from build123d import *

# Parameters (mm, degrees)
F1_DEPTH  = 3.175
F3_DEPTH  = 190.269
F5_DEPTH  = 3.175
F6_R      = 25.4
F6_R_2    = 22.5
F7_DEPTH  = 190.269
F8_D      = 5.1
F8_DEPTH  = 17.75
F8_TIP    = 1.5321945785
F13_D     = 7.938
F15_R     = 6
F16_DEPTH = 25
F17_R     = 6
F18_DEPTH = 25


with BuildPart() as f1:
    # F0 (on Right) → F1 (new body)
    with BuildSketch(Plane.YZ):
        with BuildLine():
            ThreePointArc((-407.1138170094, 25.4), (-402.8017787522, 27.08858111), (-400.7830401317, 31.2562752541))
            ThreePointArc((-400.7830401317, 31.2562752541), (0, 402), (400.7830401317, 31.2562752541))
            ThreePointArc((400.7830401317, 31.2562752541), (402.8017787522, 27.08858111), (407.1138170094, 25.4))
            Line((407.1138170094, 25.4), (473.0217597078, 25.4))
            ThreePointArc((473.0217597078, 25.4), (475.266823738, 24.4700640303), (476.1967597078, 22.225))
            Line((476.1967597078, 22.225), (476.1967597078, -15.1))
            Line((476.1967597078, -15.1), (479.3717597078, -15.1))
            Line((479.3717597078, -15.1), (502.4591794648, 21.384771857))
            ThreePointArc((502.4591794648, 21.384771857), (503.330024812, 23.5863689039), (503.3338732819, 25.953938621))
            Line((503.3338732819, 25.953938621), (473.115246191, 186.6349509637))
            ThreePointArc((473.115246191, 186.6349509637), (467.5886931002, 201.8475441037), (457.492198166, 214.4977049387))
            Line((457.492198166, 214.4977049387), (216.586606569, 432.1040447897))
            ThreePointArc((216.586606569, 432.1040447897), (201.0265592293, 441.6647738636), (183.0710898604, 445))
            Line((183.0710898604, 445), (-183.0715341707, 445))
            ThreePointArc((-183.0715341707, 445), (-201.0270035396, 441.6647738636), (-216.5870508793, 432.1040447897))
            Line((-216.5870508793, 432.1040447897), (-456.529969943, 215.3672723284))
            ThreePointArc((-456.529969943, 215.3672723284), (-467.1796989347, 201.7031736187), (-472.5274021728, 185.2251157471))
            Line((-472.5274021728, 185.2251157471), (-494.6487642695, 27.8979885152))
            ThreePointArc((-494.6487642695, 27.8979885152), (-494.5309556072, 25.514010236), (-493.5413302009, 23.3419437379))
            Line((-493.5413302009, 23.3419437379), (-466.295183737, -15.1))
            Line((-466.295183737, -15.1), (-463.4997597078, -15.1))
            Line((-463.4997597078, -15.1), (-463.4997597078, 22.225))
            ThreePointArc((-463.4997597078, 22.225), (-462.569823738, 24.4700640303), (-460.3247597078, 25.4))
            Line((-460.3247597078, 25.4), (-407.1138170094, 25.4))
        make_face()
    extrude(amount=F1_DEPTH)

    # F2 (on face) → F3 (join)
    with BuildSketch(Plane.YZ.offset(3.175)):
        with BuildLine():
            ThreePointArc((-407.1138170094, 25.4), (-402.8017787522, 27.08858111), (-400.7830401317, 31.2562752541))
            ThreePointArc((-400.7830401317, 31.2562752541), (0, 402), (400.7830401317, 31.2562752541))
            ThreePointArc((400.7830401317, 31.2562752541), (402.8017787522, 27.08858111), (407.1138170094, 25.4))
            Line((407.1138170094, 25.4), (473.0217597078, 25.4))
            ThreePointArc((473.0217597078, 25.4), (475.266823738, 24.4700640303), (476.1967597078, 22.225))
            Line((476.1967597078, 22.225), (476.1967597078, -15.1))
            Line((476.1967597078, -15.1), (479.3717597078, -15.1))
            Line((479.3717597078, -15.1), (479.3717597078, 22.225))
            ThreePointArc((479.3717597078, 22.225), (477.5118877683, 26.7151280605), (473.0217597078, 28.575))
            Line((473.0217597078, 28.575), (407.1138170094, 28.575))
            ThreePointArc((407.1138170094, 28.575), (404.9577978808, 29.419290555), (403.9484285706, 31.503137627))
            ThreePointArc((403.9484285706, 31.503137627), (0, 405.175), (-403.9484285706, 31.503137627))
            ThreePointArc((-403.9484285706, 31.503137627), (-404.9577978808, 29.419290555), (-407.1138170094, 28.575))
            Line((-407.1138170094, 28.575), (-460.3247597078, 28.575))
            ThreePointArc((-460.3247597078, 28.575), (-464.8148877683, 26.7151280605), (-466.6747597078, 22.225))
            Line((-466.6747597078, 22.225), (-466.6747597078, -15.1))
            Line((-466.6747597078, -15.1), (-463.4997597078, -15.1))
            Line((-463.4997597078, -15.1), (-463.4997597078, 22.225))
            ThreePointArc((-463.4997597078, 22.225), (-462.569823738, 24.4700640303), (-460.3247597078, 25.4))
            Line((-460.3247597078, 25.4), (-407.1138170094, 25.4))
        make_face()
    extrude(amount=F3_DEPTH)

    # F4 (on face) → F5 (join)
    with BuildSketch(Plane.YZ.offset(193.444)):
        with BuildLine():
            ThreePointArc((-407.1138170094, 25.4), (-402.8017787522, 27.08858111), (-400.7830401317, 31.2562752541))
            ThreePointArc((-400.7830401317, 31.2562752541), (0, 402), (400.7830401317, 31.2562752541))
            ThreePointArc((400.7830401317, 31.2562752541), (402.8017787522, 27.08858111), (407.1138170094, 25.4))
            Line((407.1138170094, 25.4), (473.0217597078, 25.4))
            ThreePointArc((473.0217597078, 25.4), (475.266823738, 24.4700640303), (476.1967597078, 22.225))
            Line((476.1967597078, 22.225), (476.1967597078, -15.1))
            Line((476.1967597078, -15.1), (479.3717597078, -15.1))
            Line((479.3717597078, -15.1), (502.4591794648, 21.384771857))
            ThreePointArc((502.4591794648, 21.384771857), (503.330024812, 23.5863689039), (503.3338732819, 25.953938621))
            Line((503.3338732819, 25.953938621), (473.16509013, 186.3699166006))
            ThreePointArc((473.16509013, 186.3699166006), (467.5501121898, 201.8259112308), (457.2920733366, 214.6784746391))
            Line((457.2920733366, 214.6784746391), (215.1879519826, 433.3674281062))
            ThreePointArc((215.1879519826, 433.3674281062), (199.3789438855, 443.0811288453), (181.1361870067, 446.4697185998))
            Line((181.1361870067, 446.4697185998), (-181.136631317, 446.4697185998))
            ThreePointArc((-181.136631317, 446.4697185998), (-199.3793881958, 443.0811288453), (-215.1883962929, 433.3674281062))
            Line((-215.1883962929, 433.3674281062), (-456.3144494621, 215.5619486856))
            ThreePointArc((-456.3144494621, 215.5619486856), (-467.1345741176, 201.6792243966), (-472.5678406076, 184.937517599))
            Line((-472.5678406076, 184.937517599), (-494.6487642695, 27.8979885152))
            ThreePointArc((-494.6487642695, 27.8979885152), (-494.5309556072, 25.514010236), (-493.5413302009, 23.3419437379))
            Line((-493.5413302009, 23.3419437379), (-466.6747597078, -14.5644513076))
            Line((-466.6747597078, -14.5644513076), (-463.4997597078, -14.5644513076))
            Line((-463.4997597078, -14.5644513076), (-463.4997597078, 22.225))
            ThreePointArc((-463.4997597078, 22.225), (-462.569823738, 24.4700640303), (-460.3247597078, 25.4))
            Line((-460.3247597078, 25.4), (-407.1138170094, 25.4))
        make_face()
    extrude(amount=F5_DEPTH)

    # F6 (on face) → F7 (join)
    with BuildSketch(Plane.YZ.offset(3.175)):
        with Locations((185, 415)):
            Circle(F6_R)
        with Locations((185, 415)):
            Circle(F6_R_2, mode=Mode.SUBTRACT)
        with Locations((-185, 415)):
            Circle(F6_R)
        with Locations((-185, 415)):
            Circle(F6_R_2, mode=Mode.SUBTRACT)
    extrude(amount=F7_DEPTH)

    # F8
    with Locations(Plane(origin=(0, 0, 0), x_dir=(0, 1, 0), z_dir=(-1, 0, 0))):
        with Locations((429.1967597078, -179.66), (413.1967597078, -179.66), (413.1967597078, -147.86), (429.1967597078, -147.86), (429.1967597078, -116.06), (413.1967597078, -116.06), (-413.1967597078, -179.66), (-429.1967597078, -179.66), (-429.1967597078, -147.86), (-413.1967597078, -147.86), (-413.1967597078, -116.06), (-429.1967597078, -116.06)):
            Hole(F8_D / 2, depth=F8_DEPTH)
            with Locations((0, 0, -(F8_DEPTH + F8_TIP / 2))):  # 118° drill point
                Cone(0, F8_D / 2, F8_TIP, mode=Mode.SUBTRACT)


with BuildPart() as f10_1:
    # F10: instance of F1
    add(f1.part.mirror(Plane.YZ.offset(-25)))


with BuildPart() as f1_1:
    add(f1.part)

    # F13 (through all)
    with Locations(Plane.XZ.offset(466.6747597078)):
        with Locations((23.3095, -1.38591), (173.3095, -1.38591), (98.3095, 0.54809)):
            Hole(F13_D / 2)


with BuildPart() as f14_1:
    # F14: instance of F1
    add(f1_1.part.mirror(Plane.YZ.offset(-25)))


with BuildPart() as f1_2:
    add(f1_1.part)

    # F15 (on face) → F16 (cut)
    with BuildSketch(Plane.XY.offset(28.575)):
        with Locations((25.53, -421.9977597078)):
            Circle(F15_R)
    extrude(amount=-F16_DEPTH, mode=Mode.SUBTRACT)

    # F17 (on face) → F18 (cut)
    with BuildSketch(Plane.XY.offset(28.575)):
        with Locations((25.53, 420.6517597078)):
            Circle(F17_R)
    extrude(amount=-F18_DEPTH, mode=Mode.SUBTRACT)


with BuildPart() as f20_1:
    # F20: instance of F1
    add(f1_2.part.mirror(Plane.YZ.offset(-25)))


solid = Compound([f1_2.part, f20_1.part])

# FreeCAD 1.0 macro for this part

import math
import FreeCAD as App
import Part
import Sketcher
Q = App.Units.Quantity

doc = App.newDocument("Part")
body = doc.addObject("PartDesign::Body", "Body")

sketch1 = body.newObject("Sketcher::SketchObject", "Sketch")
sketch1.AttachmentSupport = (doc.getObject("YZ_Plane"), [""])
sketch1.MapMode = "FlatFace"
sketch1.addGeometry(Part.ArcOfCircle(Part.Circle(App.Vector(-407.1, 31.8, 0), App.Vector(0, 0, 1), 6.3), math.radians(-90), math.radians(-4)), False)
sketch1.addGeometry(Part.ArcOfCircle(Part.Circle(App.Vector(0, 0, 0), App.Vector(0, 0, 1), 402), math.radians(4), math.radians(176)), False)
sketch1.addGeometry(Part.ArcOfCircle(Part.Circle(App.Vector(407.1, 31.8, 0), App.Vector(0, 0, 1), 6.3), math.radians(-176), math.radians(-90)), False)
sketch1.addGeometry(Part.LineSegment(App.Vector(407.1, 25.4, 0), App.Vector(473, 25.4, 0)), False)
sketch1.addGeometry(Part.ArcOfCircle(Part.Circle(App.Vector(473, 22.2, 0), App.Vector(0, 0, 1), 3.2), math.radians(0), math.radians(90)), False)
sketch1.addGeometry(Part.LineSegment(App.Vector(476.2, 22.2, 0), App.Vector(476.2, -15.1, 0)), False)
sketch1.addGeometry(Part.LineSegment(App.Vector(476.2, -15.1, 0), App.Vector(479.4, -15.1, 0)), False)
sketch1.addGeometry(Part.LineSegment(App.Vector(479.4, -15.1, 0), App.Vector(502.5, 21.4, 0)), False)
sketch1.addGeometry(Part.ArcOfCircle(Part.Circle(App.Vector(497.1, 24.8, 0), App.Vector(0, 0, 1), 6.3), math.radians(-32), math.radians(11)), False)
sketch1.addGeometry(Part.LineSegment(App.Vector(503.3, 26, 0), App.Vector(473.1, 186.6, 0)), False)
sketch1.addGeometry(Part.ArcOfCircle(Part.Circle(App.Vector(424, 177.4, 0), App.Vector(0, 0, 1), 50), math.radians(11), math.radians(48)), False)
sketch1.addGeometry(Part.LineSegment(App.Vector(457.5, 214.5, 0), App.Vector(216.6, 432.1, 0)), False)
sketch1.addGeometry(Part.ArcOfCircle(Part.Circle(App.Vector(183.1, 395, 0), App.Vector(0, 0, 1), 50), math.radians(48), math.radians(90)), False)
sketch1.addGeometry(Part.LineSegment(App.Vector(183.1, 445, 0), App.Vector(-183.1, 445, 0)), False)
sketch1.addGeometry(Part.ArcOfCircle(Part.Circle(App.Vector(-183.1, 395, 0), App.Vector(0, 0, 1), 50), math.radians(90), math.radians(132)), False)
sketch1.addGeometry(Part.LineSegment(App.Vector(-216.6, 432.1, 0), App.Vector(-456.5, 215.4, 0)), False)
sketch1.addGeometry(Part.ArcOfCircle(Part.Circle(App.Vector(-423, 178.3, 0), App.Vector(0, 0, 1), 50), math.radians(132), math.radians(172)), False)
sketch1.addGeometry(Part.LineSegment(App.Vector(-472.5, 185.2, 0), App.Vector(-494.6, 27.9, 0)), False)
sketch1.addGeometry(Part.ArcOfCircle(Part.Circle(App.Vector(-488.4, 27, 0), App.Vector(0, 0, 1), 6.3), math.radians(172), math.radians(215)), False)
sketch1.addGeometry(Part.LineSegment(App.Vector(-493.5, 23.3, 0), App.Vector(-466.3, -15.1, 0)), False)
sketch1.addGeometry(Part.LineSegment(App.Vector(-466.3, -15.1, 0), App.Vector(-463.5, -15.1, 0)), False)
sketch1.addGeometry(Part.LineSegment(App.Vector(-463.5, -15.1, 0), App.Vector(-463.5, 22.2, 0)), False)
sketch1.addGeometry(Part.ArcOfCircle(Part.Circle(App.Vector(-460.3, 22.2, 0), App.Vector(0, 0, 1), 3.2), math.radians(90), math.radians(180)), False)
sketch1.addGeometry(Part.LineSegment(App.Vector(-460.3, 25.4, 0), App.Vector(-407.1, 25.4, 0)), False)
sketch1.addConstraint(Sketcher.Constraint("Tangent", 0, 2, 1, 2))
sketch1.addConstraint(Sketcher.Constraint("Tangent", 1, 1, 2, 1))
sketch1.addConstraint(Sketcher.Constraint("Tangent", 2, 2, 3, 1))
sketch1.addConstraint(Sketcher.Constraint("Tangent", 3, 2, 4, 2))
sketch1.addConstraint(Sketcher.Constraint("Tangent", 4, 1, 5, 1))
sketch1.addConstraint(Sketcher.Constraint("Coincident", 5, 2, 6, 1))
sketch1.addConstraint(Sketcher.Constraint("Coincident", 6, 2, 7, 1))
sketch1.addConstraint(Sketcher.Constraint("Tangent", 7, 2, 8, 1))
sketch1.addConstraint(Sketcher.Constraint("Tangent", 8, 2, 9, 1))
sketch1.addConstraint(Sketcher.Constraint("Tangent", 9, 2, 10, 1))
sketch1.addConstraint(Sketcher.Constraint("Tangent", 10, 2, 11, 1))
sketch1.addConstraint(Sketcher.Constraint("Tangent", 11, 2, 12, 1))
sketch1.addConstraint(Sketcher.Constraint("Tangent", 12, 2, 13, 1))
sketch1.addConstraint(Sketcher.Constraint("Tangent", 13, 2, 14, 1))
sketch1.addConstraint(Sketcher.Constraint("Tangent", 14, 2, 15, 1))
sketch1.addConstraint(Sketcher.Constraint("Tangent", 15, 2, 16, 1))
sketch1.addConstraint(Sketcher.Constraint("Tangent", 16, 2, 17, 1))
sketch1.addConstraint(Sketcher.Constraint("Tangent", 17, 2, 18, 1))
sketch1.addConstraint(Sketcher.Constraint("Tangent", 18, 2, 19, 1))
sketch1.addConstraint(Sketcher.Constraint("Coincident", 19, 2, 20, 1))
sketch1.addConstraint(Sketcher.Constraint("Coincident", 20, 2, 21, 1))
sketch1.addConstraint(Sketcher.Constraint("Tangent", 21, 2, 22, 2))
sketch1.addConstraint(Sketcher.Constraint("Tangent", 22, 1, 23, 1))
sketch1.addConstraint(Sketcher.Constraint("Tangent", 23, 2, 0, 1))
sketch1.addConstraint(Sketcher.Constraint("Horizontal", 3))
sketch1.addConstraint(Sketcher.Constraint("Vertical", 5))
sketch1.addConstraint(Sketcher.Constraint("Horizontal", 6))
sketch1.addConstraint(Sketcher.Constraint("Horizontal", 13))
sketch1.addConstraint(Sketcher.Constraint("Horizontal", 20))
sketch1.addConstraint(Sketcher.Constraint("Vertical", 21))
sketch1.addConstraint(Sketcher.Constraint("Horizontal", 23))
sketch1.addConstraint(Sketcher.Constraint("Coincident", 1, 3, -1, 1))
sketch1.addConstraint(Sketcher.Constraint("Equal", 0, 2))
sketch1.addConstraint(Sketcher.Constraint("Equal", 2, 8))
sketch1.addConstraint(Sketcher.Constraint("Equal", 10, 12))
sketch1.addConstraint(Sketcher.Constraint("Equal", 12, 14))
sketch1.addConstraint(Sketcher.Constraint("Equal", 14, 16))
sketch1.addConstraint(Sketcher.Constraint("Equal", 8, 18))
sketch1.addConstraint(Sketcher.Constraint("Equal", 4, 22))
sketch1.addConstraint(Sketcher.Constraint("Horizontal", 0, 3, 2, 3))
sketch1.addConstraint(Sketcher.Constraint("Horizontal", 11, 2, 14, 2))
sketch1.addConstraint(Sketcher.Constraint("Horizontal", 6, 2, 19, 2))
sketch1.addConstraint(Sketcher.Constraint("Radius", 1, Q("402 mm")))
sketch1.addConstraint(Sketcher.Constraint("Radius", 10, Q("50 mm")))
sketch1.addConstraint(Sketcher.Constraint("Radius", 0, Q("6.35 mm")))
sketch1.addConstraint(Sketcher.Constraint("DistanceY", -1, 1, 12, 3, Q("395 mm")))
sketch1.addConstraint(Sketcher.Constraint("Radius", 4, Q("3.175 mm")))
sketch1.addConstraint(Sketcher.Constraint("DistanceY", -1, 1, 2, 2, Q("25.4 mm")))
sketch1.addConstraint(Sketcher.Constraint("DistanceY", 5, 2, -1, 1, Q("15.1 mm")))
sketch1.addConstraint(Sketcher.Constraint("DistanceX", 6, 1, 6, 2, Q("3.175 mm")))
sketch1.addConstraint(Sketcher.Constraint("DistanceX", -1, 1, 10, 2, Q("457.492198 mm")))
sketch1.addConstraint(Sketcher.Constraint("DistanceX", 0, 3, 10, 3, Q("831.090498 mm")))
sketch1.addConstraint(Sketcher.Constraint("DistanceY", 18, 3, 16, 3, Q("151.249399 mm")))
sketch1.addConstraint(Sketcher.Constraint("Distance", 9, Q("163.497869 mm")))
sketch1.addConstraint(Sketcher.Constraint("Distance", 17, Q("158.874729 mm")))
sketch1.addConstraint(Sketcher.Constraint("DistanceX", 3, 1, 3, 2, Q("65.907943 mm")))
sketch1.addConstraint(Sketcher.Constraint("DistanceX", 13, 2, 13, 1, Q("366.142624 mm")))
sketch1.addConstraint(Sketcher.Constraint("DistanceX", 20, 1, 20, 2, Q("2.795424 mm")))
sketch1.addConstraint(Sketcher.Constraint("DistanceX", 23, 1, 23, 2, Q("53.210943 mm")))
sketch1.addConstraint(Sketcher.Constraint("DistanceY", -1, 1, 10, 3, Q("177.39366 mm")))
sketch1.addConstraint(Sketcher.Constraint("DistanceX", 18, 3, -1, 1, Q("488.36062 mm")))
sketch1.addConstraint(Sketcher.Constraint("DistanceX", -1, 1, 7, 2, Q("502.459179 mm")))
pad1 = body.newObject("PartDesign::Pad", "Pad")
pad1.Profile = sketch1
pad1.Length = 3.175

sketch2 = body.newObject("Sketcher::SketchObject", "Sketch001")
sketch2.AttachmentSupport = (doc.getObject("YZ_Plane"), [""])
sketch2.MapMode = "FlatFace"
sketch2.AttachmentOffset = App.Placement(App.Vector(0, 0, 3.175), App.Rotation())
sketch2.addGeometry(Part.ArcOfCircle(Part.Circle(App.Vector(-407.1, 31.8, 0), App.Vector(0, 0, 1), 6.3), math.radians(-90), math.radians(-4)), False)
sketch2.addGeometry(Part.ArcOfCircle(Part.Circle(App.Vector(0, 0, 0), App.Vector(0, 0, 1), 402), math.radians(4), math.radians(176)), False)
sketch2.addGeometry(Part.ArcOfCircle(Part.Circle(App.Vector(407.1, 31.8, 0), App.Vector(0, 0, 1), 6.3), math.radians(-176), math.radians(-90)), False)
sketch2.addGeometry(Part.LineSegment(App.Vector(407.1, 25.4, 0), App.Vector(473, 25.4, 0)), False)
sketch2.addGeometry(Part.ArcOfCircle(Part.Circle(App.Vector(473, 22.2, 0), App.Vector(0, 0, 1), 3.2), math.radians(0), math.radians(90)), False)
sketch2.addGeometry(Part.LineSegment(App.Vector(476.2, 22.2, 0), App.Vector(476.2, -15.1, 0)), False)
sketch2.addGeometry(Part.LineSegment(App.Vector(476.2, -15.1, 0), App.Vector(479.4, -15.1, 0)), False)
sketch2.addGeometry(Part.LineSegment(App.Vector(479.4, -15.1, 0), App.Vector(479.4, 22.2, 0)), False)
sketch2.addGeometry(Part.ArcOfCircle(Part.Circle(App.Vector(473, 22.2, 0), App.Vector(0, 0, 1), 6.3), math.radians(0), math.radians(90)), False)
sketch2.addGeometry(Part.LineSegment(App.Vector(473, 28.6, 0), App.Vector(407.1, 28.6, 0)), False)
sketch2.addGeometry(Part.ArcOfCircle(Part.Circle(App.Vector(407.1, 31.8, 0), App.Vector(0, 0, 1), 3.2), math.radians(-176), math.radians(-90)), False)
sketch2.addGeometry(Part.ArcOfCircle(Part.Circle(App.Vector(0, 0, 0), App.Vector(0, 0, 1), 405.2), math.radians(4), math.radians(176)), False)
sketch2.addGeometry(Part.ArcOfCircle(Part.Circle(App.Vector(-407.1, 31.8, 0), App.Vector(0, 0, 1), 3.2), math.radians(-90), math.radians(-4)), False)
sketch2.addGeometry(Part.LineSegment(App.Vector(-407.1, 28.6, 0), App.Vector(-460.3, 28.6, 0)), False)
sketch2.addGeometry(Part.ArcOfCircle(Part.Circle(App.Vector(-460.3, 22.2, 0), App.Vector(0, 0, 1), 6.3), math.radians(90), math.radians(180)), False)
sketch2.addGeometry(Part.LineSegment(App.Vector(-466.7, 22.2, 0), App.Vector(-466.7, -15.1, 0)), False)
sketch2.addGeometry(Part.LineSegment(App.Vector(-466.7, -15.1, 0), App.Vector(-463.5, -15.1, 0)), False)
sketch2.addGeometry(Part.LineSegment(App.Vector(-463.5, -15.1, 0), App.Vector(-463.5, 22.2, 0)), False)
sketch2.addGeometry(Part.ArcOfCircle(Part.Circle(App.Vector(-460.3, 22.2, 0), App.Vector(0, 0, 1), 3.2), math.radians(90), math.radians(180)), False)
sketch2.addGeometry(Part.LineSegment(App.Vector(-460.3, 25.4, 0), App.Vector(-407.1, 25.4, 0)), False)
sketch2.addConstraint(Sketcher.Constraint("Tangent", 0, 2, 1, 2))
sketch2.addConstraint(Sketcher.Constraint("Tangent", 1, 1, 2, 1))
sketch2.addConstraint(Sketcher.Constraint("Tangent", 2, 2, 3, 1))
sketch2.addConstraint(Sketcher.Constraint("Tangent", 3, 2, 4, 2))
sketch2.addConstraint(Sketcher.Constraint("Tangent", 4, 1, 5, 1))
sketch2.addConstraint(Sketcher.Constraint("Coincident", 5, 2, 6, 1))
sketch2.addConstraint(Sketcher.Constraint("Coincident", 6, 2, 7, 1))
sketch2.addConstraint(Sketcher.Constraint("Tangent", 7, 2, 8, 1))
sketch2.addConstraint(Sketcher.Constraint("Tangent", 8, 2, 9, 1))
sketch2.addConstraint(Sketcher.Constraint("Tangent", 9, 2, 10, 2))
sketch2.addConstraint(Sketcher.Constraint("Tangent", 10, 1, 11, 1))
sketch2.addConstraint(Sketcher.Constraint("Tangent", 11, 2, 12, 2))
sketch2.addConstraint(Sketcher.Constraint("Tangent", 12, 1, 13, 1))
sketch2.addConstraint(Sketcher.Constraint("Tangent", 13, 2, 14, 1))
sketch2.addConstraint(Sketcher.Constraint("Tangent", 14, 2, 15, 1))
sketch2.addConstraint(Sketcher.Constraint("Coincident", 15, 2, 16, 1))
sketch2.addConstraint(Sketcher.Constraint("Coincident", 16, 2, 17, 1))
sketch2.addConstraint(Sketcher.Constraint("Tangent", 17, 2, 18, 2))
sketch2.addConstraint(Sketcher.Constraint("Tangent", 18, 1, 19, 1))
sketch2.addConstraint(Sketcher.Constraint("Tangent", 19, 2, 0, 1))
sketch2.addConstraint(Sketcher.Constraint("Horizontal", 3))
sketch2.addConstraint(Sketcher.Constraint("Vertical", 5))
sketch2.addConstraint(Sketcher.Constraint("Horizontal", 6))
sketch2.addConstraint(Sketcher.Constraint("Vertical", 7))
sketch2.addConstraint(Sketcher.Constraint("Horizontal", 9))
sketch2.addConstraint(Sketcher.Constraint("Horizontal", 13))
sketch2.addConstraint(Sketcher.Constraint("Vertical", 15))
sketch2.addConstraint(Sketcher.Constraint("Horizontal", 16))
sketch2.addConstraint(Sketcher.Constraint("Vertical", 17))
sketch2.addConstraint(Sketcher.Constraint("Horizontal", 19))
sketch2.addConstraint(Sketcher.Constraint("Coincident", 1, 3, -1, 1))
sketch2.addConstraint(Sketcher.Constraint("Coincident", 11, 3, -1, 1))
sketch2.addConstraint(Sketcher.Constraint("Coincident", 8, 3, 4, 3))
sketch2.addConstraint(Sketcher.Constraint("Coincident", 10, 3, 2, 3))
sketch2.addConstraint(Sketcher.Constraint("Coincident", 12, 3, 0, 3))
sketch2.addConstraint(Sketcher.Constraint("Coincident", 18, 3, 14, 3))
sketch2.addConstraint(Sketcher.Constraint("Equal", 0, 2))
sketch2.addConstraint(Sketcher.Constraint("Equal", 2, 8))
sketch2.addConstraint(Sketcher.Constraint("Equal", 8, 14))
sketch2.addConstraint(Sketcher.Constraint("Horizontal", 0, 3, 2, 3))
sketch2.addConstraint(Sketcher.Constraint("Horizontal", 6, 2, 15, 2))
sketch2.addConstraint(Sketcher.Constraint("Radius", 1, Q("402 mm")))
sketch2.addConstraint(Sketcher.Constraint("Radius", 0, Q("6.35 mm")))
sketch2.addConstraint(Sketcher.Constraint("Radius", 4, Q("3.175 mm")))
sketch2.addConstraint(Sketcher.Constraint("DistanceY", -1, 1, 2, 2, Q("25.4 mm")))
sketch2.addConstraint(Sketcher.Constraint("DistanceY", 5, 2, -1, 1, Q("15.1 mm")))
sketch2.addConstraint(Sketcher.Constraint("DistanceX", 3, 1, 3, 2, Q("65.907943 mm")))
sketch2.addConstraint(Sketcher.Constraint("DistanceX", 13, 2, 13, 1, Q("53.210943 mm")))
pad2 = body.newObject("PartDesign::Pad", "Pad001")
pad2.Profile = sketch2
pad2.Length = 190.269

sketch3 = body.newObject("Sketcher::SketchObject", "Sketch002")
sketch3.AttachmentSupport = (doc.getObject("YZ_Plane"), [""])
sketch3.MapMode = "FlatFace"
sketch3.AttachmentOffset = App.Placement(App.Vector(0, 0, 193.444), App.Rotation())
sketch3.addGeometry(Part.ArcOfCircle(Part.Circle(App.Vector(-407.1, 31.8, 0), App.Vector(0, 0, 1), 6.3), math.radians(-90), math.radians(-4)), False)
sketch3.addGeometry(Part.ArcOfCircle(Part.Circle(App.Vector(0, 0, 0), App.Vector(0, 0, 1), 402), math.radians(4), math.radians(176)), False)
sketch3.addGeometry(Part.ArcOfCircle(Part.Circle(App.Vector(407.1, 31.8, 0), App.Vector(0, 0, 1), 6.3), math.radians(-176), math.radians(-90)), False)
sketch3.addGeometry(Part.LineSegment(App.Vector(407.1, 25.4, 0), App.Vector(473, 25.4, 0)), False)
sketch3.addGeometry(Part.ArcOfCircle(Part.Circle(App.Vector(473, 22.2, 0), App.Vector(0, 0, 1), 3.2), math.radians(0), math.radians(90)), False)
sketch3.addGeometry(Part.LineSegment(App.Vector(476.2, 22.2, 0), App.Vector(476.2, -15.1, 0)), False)
sketch3.addGeometry(Part.LineSegment(App.Vector(476.2, -15.1, 0), App.Vector(479.4, -15.1, 0)), False)
sketch3.addGeometry(Part.LineSegment(App.Vector(479.4, -15.1, 0), App.Vector(502.5, 21.4, 0)), False)
sketch3.addGeometry(Part.ArcOfCircle(Part.Circle(App.Vector(497.1, 24.8, 0), App.Vector(0, 0, 1), 6.3), math.radians(-32), math.radians(11)), False)
sketch3.addGeometry(Part.LineSegment(App.Vector(503.3, 26, 0), App.Vector(473.2, 186.4, 0)), False)
sketch3.addGeometry(Part.ArcOfCircle(Part.Circle(App.Vector(423.2, 177, 0), App.Vector(0, 0, 1), 50.8), math.radians(11), math.radians(48)), False)
sketch3.addGeometry(Part.LineSegment(App.Vector(457.3, 214.7, 0), App.Vector(215.2, 433.4, 0)), False)
sketch3.addGeometry(Part.ArcOfCircle(Part.Circle(App.Vector(181.1, 395.7, 0), App.Vector(0, 0, 1), 50.8), math.radians(48), math.radians(90)), False)
sketch3.addGeometry(Part.LineSegment(App.Vector(181.1, 446.5, 0), App.Vector(-181.1, 446.5, 0)), False)
sketch3.addGeometry(Part.ArcOfCircle(Part.Circle(App.Vector(-181.1, 395.7, 0), App.Vector(0, 0, 1), 50.8), math.radians(90), math.radians(132)), False)
sketch3.addGeometry(Part.LineSegment(App.Vector(-215.2, 433.4, 0), App.Vector(-456.3, 215.6, 0)), False)
sketch3.addGeometry(Part.ArcOfCircle(Part.Circle(App.Vector(-422.3, 177.9, 0), App.Vector(0, 0, 1), 50.8), math.radians(132), math.radians(172)), False)
sketch3.addGeometry(Part.LineSegment(App.Vector(-472.6, 184.9, 0), App.Vector(-494.6, 27.9, 0)), False)
sketch3.addGeometry(Part.ArcOfCircle(Part.Circle(App.Vector(-488.4, 27, 0), App.Vector(0, 0, 1), 6.3), math.radians(172), math.radians(215)), False)
sketch3.addGeometry(Part.LineSegment(App.Vector(-493.5, 23.3, 0), App.Vector(-466.7, -14.6, 0)), False)
sketch3.addGeometry(Part.LineSegment(App.Vector(-466.7, -14.6, 0), App.Vector(-463.5, -14.6, 0)), False)
sketch3.addGeometry(Part.LineSegment(App.Vector(-463.5, -14.6, 0), App.Vector(-463.5, 22.2, 0)), False)
sketch3.addGeometry(Part.ArcOfCircle(Part.Circle(App.Vector(-460.3, 22.2, 0), App.Vector(0, 0, 1), 3.2), math.radians(90), math.radians(180)), False)
sketch3.addGeometry(Part.LineSegment(App.Vector(-460.3, 25.4, 0), App.Vector(-407.1, 25.4, 0)), False)
sketch3.addConstraint(Sketcher.Constraint("Tangent", 0, 2, 1, 2))
sketch3.addConstraint(Sketcher.Constraint("Tangent", 1, 1, 2, 1))
sketch3.addConstraint(Sketcher.Constraint("Tangent", 2, 2, 3, 1))
sketch3.addConstraint(Sketcher.Constraint("Tangent", 3, 2, 4, 2))
sketch3.addConstraint(Sketcher.Constraint("Tangent", 4, 1, 5, 1))
sketch3.addConstraint(Sketcher.Constraint("Coincident", 5, 2, 6, 1))
sketch3.addConstraint(Sketcher.Constraint("Coincident", 6, 2, 7, 1))
sketch3.addConstraint(Sketcher.Constraint("Tangent", 7, 2, 8, 1))
sketch3.addConstraint(Sketcher.Constraint("Tangent", 8, 2, 9, 1))
sketch3.addConstraint(Sketcher.Constraint("Tangent", 9, 2, 10, 1))
sketch3.addConstraint(Sketcher.Constraint("Tangent", 10, 2, 11, 1))
sketch3.addConstraint(Sketcher.Constraint("Tangent", 11, 2, 12, 1))
sketch3.addConstraint(Sketcher.Constraint("Tangent", 12, 2, 13, 1))
sketch3.addConstraint(Sketcher.Constraint("Tangent", 13, 2, 14, 1))
sketch3.addConstraint(Sketcher.Constraint("Tangent", 14, 2, 15, 1))
sketch3.addConstraint(Sketcher.Constraint("Tangent", 15, 2, 16, 1))
sketch3.addConstraint(Sketcher.Constraint("Tangent", 16, 2, 17, 1))
sketch3.addConstraint(Sketcher.Constraint("Tangent", 17, 2, 18, 1))
sketch3.addConstraint(Sketcher.Constraint("Tangent", 18, 2, 19, 1))
sketch3.addConstraint(Sketcher.Constraint("Coincident", 19, 2, 20, 1))
sketch3.addConstraint(Sketcher.Constraint("Coincident", 20, 2, 21, 1))
sketch3.addConstraint(Sketcher.Constraint("Tangent", 21, 2, 22, 2))
sketch3.addConstraint(Sketcher.Constraint("Tangent", 22, 1, 23, 1))
sketch3.addConstraint(Sketcher.Constraint("Tangent", 23, 2, 0, 1))
sketch3.addConstraint(Sketcher.Constraint("Horizontal", 3))
sketch3.addConstraint(Sketcher.Constraint("Vertical", 5))
sketch3.addConstraint(Sketcher.Constraint("Horizontal", 6))
sketch3.addConstraint(Sketcher.Constraint("Horizontal", 13))
sketch3.addConstraint(Sketcher.Constraint("Horizontal", 20))
sketch3.addConstraint(Sketcher.Constraint("Vertical", 21))
sketch3.addConstraint(Sketcher.Constraint("Horizontal", 23))
sketch3.addConstraint(Sketcher.Constraint("Coincident", 1, 3, -1, 1))
sketch3.addConstraint(Sketcher.Constraint("Equal", 0, 2))
sketch3.addConstraint(Sketcher.Constraint("Equal", 2, 8))
sketch3.addConstraint(Sketcher.Constraint("Equal", 10, 12))
sketch3.addConstraint(Sketcher.Constraint("Equal", 12, 14))
sketch3.addConstraint(Sketcher.Constraint("Equal", 14, 16))
sketch3.addConstraint(Sketcher.Constraint("Equal", 8, 18))
sketch3.addConstraint(Sketcher.Constraint("Equal", 4, 22))
sketch3.addConstraint(Sketcher.Constraint("Horizontal", 0, 3, 2, 3))
sketch3.addConstraint(Sketcher.Constraint("Horizontal", 11, 2, 14, 2))
sketch3.addConstraint(Sketcher.Constraint("Equal", 6, 20))
sketch3.addConstraint(Sketcher.Constraint("Radius", 1, Q("402 mm")))
sketch3.addConstraint(Sketcher.Constraint("Radius", 10, Q("50.8 mm")))
sketch3.addConstraint(Sketcher.Constraint("Radius", 0, Q("6.35 mm")))
sketch3.addConstraint(Sketcher.Constraint("Radius", 4, Q("3.175 mm")))
sketch3.addConstraint(Sketcher.Constraint("DistanceY", -1, 1, 2, 2, Q("25.4 mm")))
sketch3.addConstraint(Sketcher.Constraint("DistanceY", 5, 2, -1, 1, Q("15.1 mm")))
sketch3.addConstraint(Sketcher.Constraint("DistanceX", 6, 1, 6, 2, Q("3.175 mm")))
sketch3.addConstraint(Sketcher.Constraint("Distance", 15, Q("324.932301 mm")))
sketch3.addConstraint(Sketcher.Constraint("DistanceX", 13, 2, 13, 1, Q("362.272818 mm")))
sketch3.addConstraint(Sketcher.Constraint("DistanceY", 21, 1, 21, 2, Q("36.789451 mm")))
sketch3.addConstraint(Sketcher.Constraint("DistanceX", 16, 3, 2, 3, Q("829.376501 mm")))
sketch3.addConstraint(Sketcher.Constraint("Distance", 9, Q("163.228188 mm")))
sketch3.addConstraint(Sketcher.Constraint("Distance", 11, Q("326.250309 mm")))
sketch3.addConstraint(Sketcher.Constraint("Distance", 19, Q("46.461892 mm")))
sketch3.addConstraint(Sketcher.Constraint("DistanceX", 3, 1, 3, 2, Q("65.907943 mm")))
sketch3.addConstraint(Sketcher.Constraint("DistanceX", 23, 1, 23, 2, Q("53.210943 mm")))
sketch3.addConstraint(Sketcher.Constraint("DistanceX", -1, 1, 10, 3, Q("423.240308 mm")))
sketch3.addConstraint(Sketcher.Constraint("DistanceY", -1, 1, 12, 3, Q("395.669719 mm")))
sketch3.addConstraint(Sketcher.Constraint("DistanceX", 18, 3, -1, 1, Q("488.36062 mm")))
sketch3.addConstraint(Sketcher.Constraint("DistanceX", -1, 1, 7, 2, Q("502.459179 mm")))
pad3 = body.newObject("PartDesign::Pad", "Pad002")
pad3.Profile = sketch3
pad3.Length = 3.175

sketch4 = body.newObject("Sketcher::SketchObject", "Sketch003")
sketch4.AttachmentSupport = (doc.getObject("YZ_Plane"), [""])
sketch4.MapMode = "FlatFace"
sketch4.AttachmentOffset = App.Placement(App.Vector(0, 0, 3.175), App.Rotation())
sketch4.addGeometry(Part.Circle(App.Vector(185, 415, 0), App.Vector(0, 0, 1), 25), False)
sketch4.addGeometry(Part.Circle(App.Vector(185, 415, 0), App.Vector(0, 0, 1), 22), False)
sketch4.addGeometry(Part.Circle(App.Vector(-185, 415, 0), App.Vector(0, 0, 1), 25), False)
sketch4.addGeometry(Part.Circle(App.Vector(-185, 415, 0), App.Vector(0, 0, 1), 22), False)
sketch4.addConstraint(Sketcher.Constraint("Coincident", 1, 3, 0, 3))
sketch4.addConstraint(Sketcher.Constraint("Coincident", 3, 3, 2, 3))
sketch4.addConstraint(Sketcher.Constraint("Equal", 0, 2))
sketch4.addConstraint(Sketcher.Constraint("Equal", 1, 3))
sketch4.addConstraint(Sketcher.Constraint("Symmetric", 0, 3, 2, 3, -2))
sketch4.addConstraint(Sketcher.Constraint("Diameter", 1, Q("45 mm")))
sketch4.addConstraint(Sketcher.Constraint("Diameter", 0, Q("50.8 mm")))
sketch4.addConstraint(Sketcher.Constraint("DistanceX", -1, 1, 0, 3, Q("185 mm")))
sketch4.addConstraint(Sketcher.Constraint("DistanceY", -1, 1, 0, 3, Q("415 mm")))
pad4 = body.newObject("PartDesign::Pad", "Pad003")
pad4.Profile = sketch4
pad4.Length = 190.269

sketch5 = body.newObject("Sketcher::SketchObject", "Sketch004")
sketch5.AttachmentSupport = (doc.getObject("YZ_Plane"), [""])
sketch5.MapMode = "FlatFace"
sketch5.addGeometry(Part.Circle(App.Vector(429.2, 179.7, 0), App.Vector(0, 0, 1), 2.5), False)
sketch5.addGeometry(Part.Circle(App.Vector(413.2, 179.7, 0), App.Vector(0, 0, 1), 2.5), False)
sketch5.addGeometry(Part.Circle(App.Vector(413.2, 147.9, 0), App.Vector(0, 0, 1), 2.5), False)
sketch5.addGeometry(Part.Circle(App.Vector(429.2, 147.9, 0), App.Vector(0, 0, 1), 2.5), False)
sketch5.addGeometry(Part.Circle(App.Vector(429.2, 116.1, 0), App.Vector(0, 0, 1), 2.5), False)
sketch5.addGeometry(Part.Circle(App.Vector(413.2, 116.1, 0), App.Vector(0, 0, 1), 2.5), False)
sketch5.addGeometry(Part.Circle(App.Vector(-413.2, 179.7, 0), App.Vector(0, 0, 1), 2.5), False)
sketch5.addGeometry(Part.Circle(App.Vector(-429.2, 179.7, 0), App.Vector(0, 0, 1), 2.5), False)
sketch5.addGeometry(Part.Circle(App.Vector(-429.2, 147.9, 0), App.Vector(0, 0, 1), 2.5), False)
sketch5.addGeometry(Part.Circle(App.Vector(-413.2, 147.9, 0), App.Vector(0, 0, 1), 2.5), False)
sketch5.addGeometry(Part.Circle(App.Vector(-413.2, 116.1, 0), App.Vector(0, 0, 1), 2.5), False)
sketch5.addGeometry(Part.Circle(App.Vector(-429.2, 116.1, 0), App.Vector(0, 0, 1), 2.5), False)
sketch5.addConstraint(Sketcher.Constraint("Equal", 0, 1))
sketch5.addConstraint(Sketcher.Constraint("Equal", 1, 2))
sketch5.addConstraint(Sketcher.Constraint("Equal", 2, 3))
sketch5.addConstraint(Sketcher.Constraint("Equal", 3, 4))
sketch5.addConstraint(Sketcher.Constraint("Equal", 4, 5))
sketch5.addConstraint(Sketcher.Constraint("Equal", 5, 6))
sketch5.addConstraint(Sketcher.Constraint("Equal", 6, 7))
sketch5.addConstraint(Sketcher.Constraint("Equal", 7, 8))
sketch5.addConstraint(Sketcher.Constraint("Equal", 8, 9))
sketch5.addConstraint(Sketcher.Constraint("Equal", 9, 10))
sketch5.addConstraint(Sketcher.Constraint("Equal", 10, 11))
sketch5.addConstraint(Sketcher.Constraint("Symmetric", 1, 3, 6, 3, -2))
sketch5.addConstraint(Sketcher.Constraint("Symmetric", 0, 3, 7, 3, -2))
sketch5.addConstraint(Sketcher.Constraint("Symmetric", 3, 3, 8, 3, -2))
sketch5.addConstraint(Sketcher.Constraint("Symmetric", 2, 3, 9, 3, -2))
sketch5.addConstraint(Sketcher.Constraint("Symmetric", 5, 3, 10, 3, -2))
sketch5.addConstraint(Sketcher.Constraint("Symmetric", 4, 3, 11, 3, -2))
sketch5.addConstraint(Sketcher.Constraint("Horizontal", 0, 3, 1, 3))
sketch5.addConstraint(Sketcher.Constraint("Horizontal", 2, 3, 3, 3))
sketch5.addConstraint(Sketcher.Constraint("Horizontal", 4, 3, 5, 3))
sketch5.addConstraint(Sketcher.Constraint("Vertical", 1, 3, 2, 3))
sketch5.addConstraint(Sketcher.Constraint("Vertical", 0, 3, 3, 3))
sketch5.addConstraint(Sketcher.Constraint("Vertical", 3, 3, 4, 3))
sketch5.addConstraint(Sketcher.Constraint("Vertical", 2, 3, 5, 3))
sketch5.addConstraint(Sketcher.Constraint("Diameter", 0, Q("5.1 mm")))
sketch5.addConstraint(Sketcher.Constraint("DistanceX", 1, 3, 0, 3, Q("16 mm")))
sketch5.addConstraint(Sketcher.Constraint("DistanceY", 2, 3, 1, 3, Q("31.8 mm")))
sketch5.addConstraint(Sketcher.Constraint("DistanceY", 4, 3, 3, 3, Q("31.8 mm")))
sketch5.addConstraint(Sketcher.Constraint("DistanceY", -1, 1, 0, 3, Q("179.66 mm")))
sketch5.addConstraint(Sketcher.Constraint("DistanceX", -1, 1, 0, 3, Q("429.19676 mm")))
doc.recompute()
hole = body.newObject("PartDesign::Hole", "Hole")
hole.Profile = sketch5
hole.ThreadType = "None"
hole.Diameter = 5.1
hole.DepthType = "Dimension"
hole.Depth = 17.75
hole.DrillPoint = "Angled"
hole.DrillPointAngle = 118
hole.Reversed = True
body2 = doc.addObject("PartDesign::Body", "Body001")
doc.recompute()

mirroring = doc.addObject("Part::Mirroring", "Mirroring")
mirroring.Source = body
mirroring.Base = App.Vector(-25, 0, 0)
mirroring.Normal = App.Vector(1, 0, 0)
body2.BaseFeature = mirroring
doc.recompute()

sketch6 = body.newObject("Sketcher::SketchObject", "Sketch005")
sketch6.AttachmentSupport = (doc.getObject("XZ_Plane"), [""])
sketch6.MapMode = "FlatFace"
sketch6.AttachmentOffset = App.Placement(App.Vector(0, 0, 466.67476), App.Rotation())
sketch6.addGeometry(Part.Circle(App.Vector(23.3, -1.4, 0), App.Vector(0, 0, 1), 4), False)
sketch6.addGeometry(Part.Circle(App.Vector(173.3, -1.4, 0), App.Vector(0, 0, 1), 4), False)
sketch6.addGeometry(Part.Circle(App.Vector(98.3, 0.5, 0), App.Vector(0, 0, 1), 4), False)
sketch6.addConstraint(Sketcher.Constraint("Equal", 0, 1))
sketch6.addConstraint(Sketcher.Constraint("Equal", 1, 2))
sketch6.addConstraint(Sketcher.Constraint("Horizontal", 0, 3, 1, 3))
sketch6.addConstraint(Sketcher.Constraint("Diameter", 0, Q("7.938 mm")))
sketch6.addConstraint(Sketcher.Constraint("DistanceX", 0, 3, 1, 3, Q("150 mm")))
sketch6.addConstraint(Sketcher.Constraint("DistanceX", 0, 3, 2, 3, Q("75 mm")))
sketch6.addConstraint(Sketcher.Constraint("DistanceY", 0, 3, 2, 3, Q("1.934 mm")))
sketch6.addConstraint(Sketcher.Constraint("DistanceX", -1, 1, 0, 3, Q("23.3095 mm")))
sketch6.addConstraint(Sketcher.Constraint("DistanceY", 0, 3, -1, 1, Q("1.38591 mm")))
doc.recompute()
hole2 = body.newObject("PartDesign::Hole", "Hole001")
hole2.Profile = sketch6
hole2.ThreadType = "None"
hole2.Diameter = 7.938
hole2.DepthType = "ThroughAll"
body3 = doc.addObject("PartDesign::Body", "Body002")
doc.recompute()

mirroring2 = doc.addObject("Part::Mirroring", "Mirroring001")
mirroring2.Source = body
mirroring2.Base = App.Vector(-25, 0, 0)
mirroring2.Normal = App.Vector(1, 0, 0)
body3.BaseFeature = mirroring2
doc.recompute()

sketch7 = body.newObject("Sketcher::SketchObject", "Sketch006")
sketch7.AttachmentSupport = (doc.getObject("XY_Plane"), [""])
sketch7.MapMode = "FlatFace"
sketch7.AttachmentOffset = App.Placement(App.Vector(0, 0, 28.575), App.Rotation())
sketch7.addGeometry(Part.Circle(App.Vector(26, -422, 0), App.Vector(0, 0, 1), 6), False)
sketch7.addConstraint(Sketcher.Constraint("Diameter", 0, Q("12 mm")))
sketch7.addConstraint(Sketcher.Constraint("DistanceX", -1, 1, 0, 3, Q("25.53 mm")))
sketch7.addConstraint(Sketcher.Constraint("DistanceY", 0, 3, -1, 1, Q("421.99776 mm")))
pocket1 = body.newObject("PartDesign::Pocket", "Pocket")
pocket1.Profile = sketch7
pocket1.Length = 25

sketch8 = body.newObject("Sketcher::SketchObject", "Sketch007")
sketch8.AttachmentSupport = (doc.getObject("XY_Plane"), [""])
sketch8.MapMode = "FlatFace"
sketch8.AttachmentOffset = App.Placement(App.Vector(0, 0, 28.575), App.Rotation())
sketch8.addGeometry(Part.Circle(App.Vector(26, 421, 0), App.Vector(0, 0, 1), 6), False)
sketch8.addConstraint(Sketcher.Constraint("Diameter", 0, Q("12 mm")))
sketch8.addConstraint(Sketcher.Constraint("DistanceX", -1, 1, 0, 3, Q("25.53 mm")))
sketch8.addConstraint(Sketcher.Constraint("DistanceY", -1, 1, 0, 3, Q("420.65176 mm")))
pocket2 = body.newObject("PartDesign::Pocket", "Pocket001")
pocket2.Profile = sketch8
pocket2.Length = 25
body4 = doc.addObject("PartDesign::Body", "Body003")
doc.recompute()

mirroring3 = doc.addObject("Part::Mirroring", "Mirroring002")
mirroring3.Source = body
mirroring3.Base = App.Vector(-25, 0, 0)
mirroring3.Normal = App.Vector(1, 0, 0)
body4.BaseFeature = mirroring3
doc.recompute()
body2.Visibility = False
body3.Visibility = False
mirroring.Visibility = False
mirroring2.Visibility = False
mirroring3.Visibility = False

doc.recompute()
